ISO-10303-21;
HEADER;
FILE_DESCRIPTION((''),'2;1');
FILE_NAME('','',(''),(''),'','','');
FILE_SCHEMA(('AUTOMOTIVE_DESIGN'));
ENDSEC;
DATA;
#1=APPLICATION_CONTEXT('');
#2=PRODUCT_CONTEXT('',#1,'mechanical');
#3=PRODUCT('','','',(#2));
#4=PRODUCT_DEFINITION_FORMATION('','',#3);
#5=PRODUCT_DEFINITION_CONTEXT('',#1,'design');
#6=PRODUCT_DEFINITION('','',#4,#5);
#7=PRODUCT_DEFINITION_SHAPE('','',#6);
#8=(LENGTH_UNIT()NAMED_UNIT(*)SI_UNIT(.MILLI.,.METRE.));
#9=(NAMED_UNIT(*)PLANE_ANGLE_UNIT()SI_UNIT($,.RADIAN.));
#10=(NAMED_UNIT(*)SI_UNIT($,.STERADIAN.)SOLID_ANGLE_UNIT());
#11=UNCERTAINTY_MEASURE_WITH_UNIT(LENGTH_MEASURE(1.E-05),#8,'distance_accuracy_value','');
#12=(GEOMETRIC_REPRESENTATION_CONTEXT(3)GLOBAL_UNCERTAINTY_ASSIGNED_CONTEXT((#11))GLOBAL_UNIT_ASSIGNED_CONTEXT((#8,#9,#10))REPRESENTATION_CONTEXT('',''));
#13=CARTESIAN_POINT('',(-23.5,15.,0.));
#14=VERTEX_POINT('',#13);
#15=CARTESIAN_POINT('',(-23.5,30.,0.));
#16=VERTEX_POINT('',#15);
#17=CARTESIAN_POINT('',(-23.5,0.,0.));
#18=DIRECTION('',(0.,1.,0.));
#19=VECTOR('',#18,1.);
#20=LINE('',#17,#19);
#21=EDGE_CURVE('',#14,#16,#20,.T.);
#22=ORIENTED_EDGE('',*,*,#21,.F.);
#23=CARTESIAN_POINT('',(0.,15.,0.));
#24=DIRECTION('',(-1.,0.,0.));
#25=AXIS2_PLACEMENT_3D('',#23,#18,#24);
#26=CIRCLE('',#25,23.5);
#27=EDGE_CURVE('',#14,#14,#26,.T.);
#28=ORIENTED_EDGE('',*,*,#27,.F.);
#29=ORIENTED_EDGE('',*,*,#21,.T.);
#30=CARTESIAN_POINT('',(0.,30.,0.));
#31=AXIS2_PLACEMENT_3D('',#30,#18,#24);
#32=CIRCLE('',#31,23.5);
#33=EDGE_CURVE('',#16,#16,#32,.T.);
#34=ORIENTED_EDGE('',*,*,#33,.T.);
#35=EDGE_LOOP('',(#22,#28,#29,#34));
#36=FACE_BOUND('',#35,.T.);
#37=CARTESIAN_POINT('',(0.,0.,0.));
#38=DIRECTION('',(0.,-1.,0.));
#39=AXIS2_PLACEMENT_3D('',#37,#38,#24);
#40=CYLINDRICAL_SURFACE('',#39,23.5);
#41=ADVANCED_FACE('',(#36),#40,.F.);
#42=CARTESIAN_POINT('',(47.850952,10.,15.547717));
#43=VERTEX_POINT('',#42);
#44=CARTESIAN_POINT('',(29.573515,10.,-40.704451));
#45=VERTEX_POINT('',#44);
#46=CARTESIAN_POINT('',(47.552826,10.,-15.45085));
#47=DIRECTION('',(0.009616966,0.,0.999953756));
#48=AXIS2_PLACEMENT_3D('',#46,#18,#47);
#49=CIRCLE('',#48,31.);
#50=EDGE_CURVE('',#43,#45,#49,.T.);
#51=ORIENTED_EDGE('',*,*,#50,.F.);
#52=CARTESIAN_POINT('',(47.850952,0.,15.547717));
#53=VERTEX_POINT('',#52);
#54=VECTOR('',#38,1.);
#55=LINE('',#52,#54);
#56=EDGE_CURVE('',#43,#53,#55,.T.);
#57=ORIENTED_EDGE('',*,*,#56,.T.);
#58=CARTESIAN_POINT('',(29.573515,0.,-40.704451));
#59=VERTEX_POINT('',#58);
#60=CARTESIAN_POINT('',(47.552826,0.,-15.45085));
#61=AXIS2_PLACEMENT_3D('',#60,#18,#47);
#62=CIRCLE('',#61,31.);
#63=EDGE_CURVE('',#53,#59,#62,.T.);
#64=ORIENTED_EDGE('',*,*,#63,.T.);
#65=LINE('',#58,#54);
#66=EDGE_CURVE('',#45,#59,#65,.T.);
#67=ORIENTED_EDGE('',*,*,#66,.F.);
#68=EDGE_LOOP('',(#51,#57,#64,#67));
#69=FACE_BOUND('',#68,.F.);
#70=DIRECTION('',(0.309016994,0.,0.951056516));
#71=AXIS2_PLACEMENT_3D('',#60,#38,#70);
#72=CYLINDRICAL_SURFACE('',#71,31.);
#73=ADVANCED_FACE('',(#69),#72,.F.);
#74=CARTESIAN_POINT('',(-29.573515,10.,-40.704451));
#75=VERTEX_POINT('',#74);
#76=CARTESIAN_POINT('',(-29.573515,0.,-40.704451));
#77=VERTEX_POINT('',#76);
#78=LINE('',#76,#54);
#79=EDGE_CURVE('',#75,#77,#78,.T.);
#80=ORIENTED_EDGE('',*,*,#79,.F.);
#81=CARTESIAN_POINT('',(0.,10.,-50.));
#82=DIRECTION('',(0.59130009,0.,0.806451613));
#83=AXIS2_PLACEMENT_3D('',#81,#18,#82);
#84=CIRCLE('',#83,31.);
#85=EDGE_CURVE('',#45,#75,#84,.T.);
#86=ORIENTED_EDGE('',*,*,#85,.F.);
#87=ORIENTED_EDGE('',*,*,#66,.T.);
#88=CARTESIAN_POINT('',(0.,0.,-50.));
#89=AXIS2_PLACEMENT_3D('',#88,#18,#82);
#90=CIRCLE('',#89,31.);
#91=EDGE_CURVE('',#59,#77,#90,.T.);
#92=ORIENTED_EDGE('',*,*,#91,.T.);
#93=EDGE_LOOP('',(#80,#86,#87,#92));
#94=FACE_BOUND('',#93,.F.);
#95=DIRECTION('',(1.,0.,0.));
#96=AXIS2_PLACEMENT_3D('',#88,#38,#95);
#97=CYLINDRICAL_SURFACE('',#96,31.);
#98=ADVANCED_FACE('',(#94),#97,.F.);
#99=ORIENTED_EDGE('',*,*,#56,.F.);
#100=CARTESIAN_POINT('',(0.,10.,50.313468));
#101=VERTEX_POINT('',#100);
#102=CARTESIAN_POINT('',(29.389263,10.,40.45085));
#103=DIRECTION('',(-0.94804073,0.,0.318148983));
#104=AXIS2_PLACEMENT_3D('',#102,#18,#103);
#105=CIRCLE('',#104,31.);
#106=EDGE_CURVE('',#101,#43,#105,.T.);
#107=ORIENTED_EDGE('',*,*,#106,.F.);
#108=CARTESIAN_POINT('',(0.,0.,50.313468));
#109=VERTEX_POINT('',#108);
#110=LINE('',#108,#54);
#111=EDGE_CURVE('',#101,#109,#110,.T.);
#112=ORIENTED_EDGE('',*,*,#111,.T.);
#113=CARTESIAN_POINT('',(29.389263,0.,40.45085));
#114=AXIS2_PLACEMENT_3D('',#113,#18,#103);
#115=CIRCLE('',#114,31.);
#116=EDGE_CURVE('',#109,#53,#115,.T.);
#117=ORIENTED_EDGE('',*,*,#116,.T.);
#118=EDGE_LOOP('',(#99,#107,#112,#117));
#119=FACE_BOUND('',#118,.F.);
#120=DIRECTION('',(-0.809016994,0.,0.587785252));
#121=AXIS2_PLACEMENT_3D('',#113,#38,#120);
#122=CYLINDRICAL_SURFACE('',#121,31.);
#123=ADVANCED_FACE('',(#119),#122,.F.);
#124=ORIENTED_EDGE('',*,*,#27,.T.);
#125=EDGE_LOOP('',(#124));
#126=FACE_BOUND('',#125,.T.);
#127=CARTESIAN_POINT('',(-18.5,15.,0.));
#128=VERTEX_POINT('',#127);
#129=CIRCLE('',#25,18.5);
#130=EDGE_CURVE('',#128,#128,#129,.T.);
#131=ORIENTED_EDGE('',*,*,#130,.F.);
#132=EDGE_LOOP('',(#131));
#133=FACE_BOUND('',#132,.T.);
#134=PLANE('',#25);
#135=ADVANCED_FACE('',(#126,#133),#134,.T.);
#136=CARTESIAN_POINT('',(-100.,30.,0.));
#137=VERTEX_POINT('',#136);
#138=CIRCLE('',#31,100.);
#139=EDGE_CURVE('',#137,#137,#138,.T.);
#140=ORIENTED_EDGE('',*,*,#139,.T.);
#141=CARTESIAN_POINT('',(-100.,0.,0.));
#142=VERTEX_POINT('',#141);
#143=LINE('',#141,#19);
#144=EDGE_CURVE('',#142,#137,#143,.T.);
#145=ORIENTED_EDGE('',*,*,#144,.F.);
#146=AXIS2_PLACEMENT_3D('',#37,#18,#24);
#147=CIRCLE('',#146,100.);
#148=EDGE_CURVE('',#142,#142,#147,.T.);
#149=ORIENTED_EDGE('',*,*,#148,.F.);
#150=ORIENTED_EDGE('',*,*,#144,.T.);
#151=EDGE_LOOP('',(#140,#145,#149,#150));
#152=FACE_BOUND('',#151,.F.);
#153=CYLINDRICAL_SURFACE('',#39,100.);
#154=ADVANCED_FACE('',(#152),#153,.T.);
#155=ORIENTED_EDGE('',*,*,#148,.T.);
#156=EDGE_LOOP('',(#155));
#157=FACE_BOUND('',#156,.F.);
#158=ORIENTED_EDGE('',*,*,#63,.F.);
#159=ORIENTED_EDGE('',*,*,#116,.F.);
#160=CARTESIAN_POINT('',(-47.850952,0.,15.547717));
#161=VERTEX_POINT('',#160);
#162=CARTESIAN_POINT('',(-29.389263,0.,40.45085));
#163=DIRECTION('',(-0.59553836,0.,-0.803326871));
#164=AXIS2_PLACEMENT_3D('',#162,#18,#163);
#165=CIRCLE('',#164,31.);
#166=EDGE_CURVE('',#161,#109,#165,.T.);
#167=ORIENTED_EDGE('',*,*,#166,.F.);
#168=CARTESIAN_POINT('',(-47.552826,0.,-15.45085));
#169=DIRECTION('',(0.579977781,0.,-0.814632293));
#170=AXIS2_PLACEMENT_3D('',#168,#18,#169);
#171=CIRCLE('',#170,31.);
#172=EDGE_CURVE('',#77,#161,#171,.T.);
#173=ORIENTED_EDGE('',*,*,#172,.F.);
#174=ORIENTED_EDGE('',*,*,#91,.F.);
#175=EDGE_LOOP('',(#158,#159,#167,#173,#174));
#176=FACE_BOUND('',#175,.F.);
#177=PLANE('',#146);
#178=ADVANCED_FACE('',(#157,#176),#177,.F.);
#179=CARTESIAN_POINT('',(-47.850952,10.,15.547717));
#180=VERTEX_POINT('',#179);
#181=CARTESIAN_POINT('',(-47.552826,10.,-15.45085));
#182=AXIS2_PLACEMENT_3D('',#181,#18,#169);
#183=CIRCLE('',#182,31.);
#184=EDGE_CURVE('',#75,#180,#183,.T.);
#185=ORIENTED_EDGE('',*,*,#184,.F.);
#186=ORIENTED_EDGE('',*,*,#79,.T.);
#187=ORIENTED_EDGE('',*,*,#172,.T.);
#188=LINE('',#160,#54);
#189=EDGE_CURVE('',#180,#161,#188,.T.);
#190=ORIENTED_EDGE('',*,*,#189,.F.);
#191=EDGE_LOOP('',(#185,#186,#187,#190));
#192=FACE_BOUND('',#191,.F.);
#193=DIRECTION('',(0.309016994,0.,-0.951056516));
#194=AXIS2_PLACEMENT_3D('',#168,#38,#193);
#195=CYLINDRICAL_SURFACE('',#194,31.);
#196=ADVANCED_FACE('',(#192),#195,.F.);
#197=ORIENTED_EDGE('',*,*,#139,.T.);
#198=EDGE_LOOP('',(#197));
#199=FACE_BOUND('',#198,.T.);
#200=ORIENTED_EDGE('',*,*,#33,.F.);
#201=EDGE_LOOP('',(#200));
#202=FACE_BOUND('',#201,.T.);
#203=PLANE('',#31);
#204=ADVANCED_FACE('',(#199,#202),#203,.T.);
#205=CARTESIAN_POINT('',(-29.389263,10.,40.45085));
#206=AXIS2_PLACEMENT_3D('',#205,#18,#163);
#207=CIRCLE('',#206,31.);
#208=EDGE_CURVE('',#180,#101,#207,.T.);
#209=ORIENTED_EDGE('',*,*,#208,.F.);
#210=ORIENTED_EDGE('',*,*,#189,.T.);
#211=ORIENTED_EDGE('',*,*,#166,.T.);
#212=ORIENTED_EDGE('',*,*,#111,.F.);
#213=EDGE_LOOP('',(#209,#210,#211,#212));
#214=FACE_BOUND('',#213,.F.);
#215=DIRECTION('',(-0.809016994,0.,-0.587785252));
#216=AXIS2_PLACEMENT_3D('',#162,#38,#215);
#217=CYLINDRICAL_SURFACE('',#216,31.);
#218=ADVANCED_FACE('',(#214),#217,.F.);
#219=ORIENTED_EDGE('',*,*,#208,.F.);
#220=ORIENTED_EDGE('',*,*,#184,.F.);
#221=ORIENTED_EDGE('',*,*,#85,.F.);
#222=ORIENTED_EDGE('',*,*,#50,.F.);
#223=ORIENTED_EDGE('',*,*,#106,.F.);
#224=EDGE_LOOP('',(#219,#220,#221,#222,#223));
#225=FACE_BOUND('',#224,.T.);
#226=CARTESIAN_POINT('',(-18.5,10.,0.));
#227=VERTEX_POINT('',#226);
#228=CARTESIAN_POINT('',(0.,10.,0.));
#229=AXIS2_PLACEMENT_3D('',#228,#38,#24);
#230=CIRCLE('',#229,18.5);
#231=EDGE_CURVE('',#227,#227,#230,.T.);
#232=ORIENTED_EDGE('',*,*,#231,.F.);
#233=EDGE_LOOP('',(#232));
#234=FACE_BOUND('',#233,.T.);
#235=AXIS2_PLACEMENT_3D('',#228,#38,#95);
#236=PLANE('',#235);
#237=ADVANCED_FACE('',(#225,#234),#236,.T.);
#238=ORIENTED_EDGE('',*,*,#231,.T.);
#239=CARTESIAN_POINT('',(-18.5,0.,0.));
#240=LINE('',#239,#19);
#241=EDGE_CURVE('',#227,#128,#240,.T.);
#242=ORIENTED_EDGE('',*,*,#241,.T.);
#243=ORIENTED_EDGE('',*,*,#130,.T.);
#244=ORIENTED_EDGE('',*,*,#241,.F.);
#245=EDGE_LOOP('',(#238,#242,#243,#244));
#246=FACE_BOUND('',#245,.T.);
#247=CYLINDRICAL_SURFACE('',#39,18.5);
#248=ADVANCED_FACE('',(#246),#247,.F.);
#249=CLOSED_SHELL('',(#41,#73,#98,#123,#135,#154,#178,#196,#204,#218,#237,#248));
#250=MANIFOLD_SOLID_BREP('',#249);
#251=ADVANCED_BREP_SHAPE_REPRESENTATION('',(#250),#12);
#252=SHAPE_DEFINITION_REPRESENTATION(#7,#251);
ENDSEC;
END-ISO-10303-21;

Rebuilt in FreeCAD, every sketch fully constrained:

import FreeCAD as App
import Part
import Sketcher
Q = App.Units.Quantity

doc = App.newDocument("Part")
params = doc.addObject("Spreadsheet::Sheet", "Params")
for row, (alias, value) in enumerate([
    ("sketch1_diameter", "200 mm"),
    ("sketch1_diameter2", "47 mm"),
    ("pad1_length", "30 mm"),
    ("sketch2_diameter", "47 mm"),
    ("sketch2_diameter2", "37 mm"),
    ("pad2_length", "15 mm"),
    ("sketch3_diameter", "62 mm"),
    ("pocket1_length", "10 mm"),
    ("sketch4_diameter", "62 mm"),
    ("pocket2_length", "10 mm"),
], start=1):
    params.set(f"A{row}", alias)
    params.set(f"B{row}", "=" + value)
    params.setAlias(f"B{row}", alias)

body = doc.addObject("PartDesign::Body", "Body")

sketch1 = doc.addObject("Sketcher::SketchObject", "Sketch")
body.addObject(sketch1)
sketch1.AttachmentSupport = (doc.XZ_Plane, [""])
sketch1.MapMode = "FlatFace"
sketch1.addGeometry(Part.Circle(App.Vector(0, 0, 0), App.Vector(0, 0, 1), 100), False)
sketch1.addGeometry(Part.Circle(App.Vector(0, 0, 0), App.Vector(0, 0, 1), 24), False)
sketch1.addConstraint(Sketcher.Constraint("Coincident", 0, 3, -1, 1))
sketch1.addConstraint(Sketcher.Constraint("Coincident", 1, 3, -1, 1))
sketch1.addConstraint(Sketcher.Constraint("Diameter", 0, Q("200 mm")))
sketch1.addConstraint(Sketcher.Constraint("Diameter", 1, Q("47 mm")))
sketch1.setExpression("Constraints[2]", "Params.sketch1_diameter")
sketch1.setExpression("Constraints[3]", "Params.sketch1_diameter2")
pad1 = doc.addObject("PartDesign::Pad", "Pad")
body.addObject(pad1)
pad1.Profile = sketch1
pad1.setExpression("Length", "Params.pad1_length")
pad1.Reversed = True

sketch2 = doc.addObject("Sketcher::SketchObject", "Sketch001")
body.addObject(sketch2)
sketch2.AttachmentSupport = (doc.XZ_Plane, [""])
sketch2.MapMode = "FlatFace"
sketch2.addGeometry(Part.Circle(App.Vector(0, 0, 0), App.Vector(0, 0, 1), 24), False)
sketch2.addGeometry(Part.Circle(App.Vector(0, 0, 0), App.Vector(0, 0, 1), 18), False)
sketch2.addConstraint(Sketcher.Constraint("Coincident", 0, 3, -1, 1))
sketch2.addConstraint(Sketcher.Constraint("Coincident", 1, 3, -1, 1))
sketch2.addConstraint(Sketcher.Constraint("Diameter", 0, Q("47 mm")))
sketch2.addConstraint(Sketcher.Constraint("Diameter", 1, Q("37 mm")))
sketch2.setExpression("Constraints[2]", "Params.sketch2_diameter")
sketch2.setExpression("Constraints[3]", "Params.sketch2_diameter2")
pad2 = doc.addObject("PartDesign::Pad", "Pad001")
body.addObject(pad2)
pad2.Profile = sketch2
pad2.setExpression("Length", "Params.pad2_length")
pad2.Reversed = True

sketch3 = doc.addObject("Sketcher::SketchObject", "Sketch002")
body.addObject(sketch3)
sketch3.AttachmentSupport = (doc.XZ_Plane, [""])
sketch3.MapMode = "FlatFace"
sketch3.addGeometry(Part.Circle(App.Vector(0, 0, 0), App.Vector(0, 0, 1), 31), False)
sketch3.addConstraint(Sketcher.Constraint("Coincident", 0, 3, -1, 1))
sketch3.addConstraint(Sketcher.Constraint("Diameter", 0, Q("62 mm")))
sketch3.setExpression("Constraints[1]", "Params.sketch3_diameter")
pocket1 = doc.addObject("PartDesign::Pocket", "Pocket")
body.addObject(pocket1)
pocket1.Profile = sketch3
pocket1.setExpression("Length", "Params.pocket1_length")

sketch4 = doc.addObject("Sketcher::SketchObject", "Sketch003")
body.addObject(sketch4)
sketch4.AttachmentSupport = (doc.XZ_Plane, [""])
sketch4.MapMode = "FlatFace"
sketch4.addGeometry(Part.Circle(App.Vector(0, -50, 0), App.Vector(0, 0, 1), 31), False)
sketch4.addConstraint(Sketcher.Constraint("PointOnObject", 0, 3, -2))
sketch4.addConstraint(Sketcher.Constraint("Diameter", 0, Q("62 mm")))
sketch4.addConstraint(Sketcher.Constraint("DistanceY", 0, 3, -1, 1, Q("50 mm")))
sketch4.setExpression("Constraints[1]", "Params.sketch4_diameter")
pocket2 = doc.addObject("PartDesign::Pocket", "Pocket001")
body.addObject(pocket2)
pocket2.Profile = sketch4
pocket2.setExpression("Length", "Params.pocket2_length")
doc.recompute()

polarpattern = doc.addObject("PartDesign::PolarPattern", "PolarPattern")
body.addObject(polarpattern)
polarpattern.Originals = [pocket2]
polarpattern.Axis = (doc.Y_Axis, [""])
polarpattern.Angle = 360
polarpattern.Occurrences = 5
body.Tip = polarpattern

doc.recompute()
